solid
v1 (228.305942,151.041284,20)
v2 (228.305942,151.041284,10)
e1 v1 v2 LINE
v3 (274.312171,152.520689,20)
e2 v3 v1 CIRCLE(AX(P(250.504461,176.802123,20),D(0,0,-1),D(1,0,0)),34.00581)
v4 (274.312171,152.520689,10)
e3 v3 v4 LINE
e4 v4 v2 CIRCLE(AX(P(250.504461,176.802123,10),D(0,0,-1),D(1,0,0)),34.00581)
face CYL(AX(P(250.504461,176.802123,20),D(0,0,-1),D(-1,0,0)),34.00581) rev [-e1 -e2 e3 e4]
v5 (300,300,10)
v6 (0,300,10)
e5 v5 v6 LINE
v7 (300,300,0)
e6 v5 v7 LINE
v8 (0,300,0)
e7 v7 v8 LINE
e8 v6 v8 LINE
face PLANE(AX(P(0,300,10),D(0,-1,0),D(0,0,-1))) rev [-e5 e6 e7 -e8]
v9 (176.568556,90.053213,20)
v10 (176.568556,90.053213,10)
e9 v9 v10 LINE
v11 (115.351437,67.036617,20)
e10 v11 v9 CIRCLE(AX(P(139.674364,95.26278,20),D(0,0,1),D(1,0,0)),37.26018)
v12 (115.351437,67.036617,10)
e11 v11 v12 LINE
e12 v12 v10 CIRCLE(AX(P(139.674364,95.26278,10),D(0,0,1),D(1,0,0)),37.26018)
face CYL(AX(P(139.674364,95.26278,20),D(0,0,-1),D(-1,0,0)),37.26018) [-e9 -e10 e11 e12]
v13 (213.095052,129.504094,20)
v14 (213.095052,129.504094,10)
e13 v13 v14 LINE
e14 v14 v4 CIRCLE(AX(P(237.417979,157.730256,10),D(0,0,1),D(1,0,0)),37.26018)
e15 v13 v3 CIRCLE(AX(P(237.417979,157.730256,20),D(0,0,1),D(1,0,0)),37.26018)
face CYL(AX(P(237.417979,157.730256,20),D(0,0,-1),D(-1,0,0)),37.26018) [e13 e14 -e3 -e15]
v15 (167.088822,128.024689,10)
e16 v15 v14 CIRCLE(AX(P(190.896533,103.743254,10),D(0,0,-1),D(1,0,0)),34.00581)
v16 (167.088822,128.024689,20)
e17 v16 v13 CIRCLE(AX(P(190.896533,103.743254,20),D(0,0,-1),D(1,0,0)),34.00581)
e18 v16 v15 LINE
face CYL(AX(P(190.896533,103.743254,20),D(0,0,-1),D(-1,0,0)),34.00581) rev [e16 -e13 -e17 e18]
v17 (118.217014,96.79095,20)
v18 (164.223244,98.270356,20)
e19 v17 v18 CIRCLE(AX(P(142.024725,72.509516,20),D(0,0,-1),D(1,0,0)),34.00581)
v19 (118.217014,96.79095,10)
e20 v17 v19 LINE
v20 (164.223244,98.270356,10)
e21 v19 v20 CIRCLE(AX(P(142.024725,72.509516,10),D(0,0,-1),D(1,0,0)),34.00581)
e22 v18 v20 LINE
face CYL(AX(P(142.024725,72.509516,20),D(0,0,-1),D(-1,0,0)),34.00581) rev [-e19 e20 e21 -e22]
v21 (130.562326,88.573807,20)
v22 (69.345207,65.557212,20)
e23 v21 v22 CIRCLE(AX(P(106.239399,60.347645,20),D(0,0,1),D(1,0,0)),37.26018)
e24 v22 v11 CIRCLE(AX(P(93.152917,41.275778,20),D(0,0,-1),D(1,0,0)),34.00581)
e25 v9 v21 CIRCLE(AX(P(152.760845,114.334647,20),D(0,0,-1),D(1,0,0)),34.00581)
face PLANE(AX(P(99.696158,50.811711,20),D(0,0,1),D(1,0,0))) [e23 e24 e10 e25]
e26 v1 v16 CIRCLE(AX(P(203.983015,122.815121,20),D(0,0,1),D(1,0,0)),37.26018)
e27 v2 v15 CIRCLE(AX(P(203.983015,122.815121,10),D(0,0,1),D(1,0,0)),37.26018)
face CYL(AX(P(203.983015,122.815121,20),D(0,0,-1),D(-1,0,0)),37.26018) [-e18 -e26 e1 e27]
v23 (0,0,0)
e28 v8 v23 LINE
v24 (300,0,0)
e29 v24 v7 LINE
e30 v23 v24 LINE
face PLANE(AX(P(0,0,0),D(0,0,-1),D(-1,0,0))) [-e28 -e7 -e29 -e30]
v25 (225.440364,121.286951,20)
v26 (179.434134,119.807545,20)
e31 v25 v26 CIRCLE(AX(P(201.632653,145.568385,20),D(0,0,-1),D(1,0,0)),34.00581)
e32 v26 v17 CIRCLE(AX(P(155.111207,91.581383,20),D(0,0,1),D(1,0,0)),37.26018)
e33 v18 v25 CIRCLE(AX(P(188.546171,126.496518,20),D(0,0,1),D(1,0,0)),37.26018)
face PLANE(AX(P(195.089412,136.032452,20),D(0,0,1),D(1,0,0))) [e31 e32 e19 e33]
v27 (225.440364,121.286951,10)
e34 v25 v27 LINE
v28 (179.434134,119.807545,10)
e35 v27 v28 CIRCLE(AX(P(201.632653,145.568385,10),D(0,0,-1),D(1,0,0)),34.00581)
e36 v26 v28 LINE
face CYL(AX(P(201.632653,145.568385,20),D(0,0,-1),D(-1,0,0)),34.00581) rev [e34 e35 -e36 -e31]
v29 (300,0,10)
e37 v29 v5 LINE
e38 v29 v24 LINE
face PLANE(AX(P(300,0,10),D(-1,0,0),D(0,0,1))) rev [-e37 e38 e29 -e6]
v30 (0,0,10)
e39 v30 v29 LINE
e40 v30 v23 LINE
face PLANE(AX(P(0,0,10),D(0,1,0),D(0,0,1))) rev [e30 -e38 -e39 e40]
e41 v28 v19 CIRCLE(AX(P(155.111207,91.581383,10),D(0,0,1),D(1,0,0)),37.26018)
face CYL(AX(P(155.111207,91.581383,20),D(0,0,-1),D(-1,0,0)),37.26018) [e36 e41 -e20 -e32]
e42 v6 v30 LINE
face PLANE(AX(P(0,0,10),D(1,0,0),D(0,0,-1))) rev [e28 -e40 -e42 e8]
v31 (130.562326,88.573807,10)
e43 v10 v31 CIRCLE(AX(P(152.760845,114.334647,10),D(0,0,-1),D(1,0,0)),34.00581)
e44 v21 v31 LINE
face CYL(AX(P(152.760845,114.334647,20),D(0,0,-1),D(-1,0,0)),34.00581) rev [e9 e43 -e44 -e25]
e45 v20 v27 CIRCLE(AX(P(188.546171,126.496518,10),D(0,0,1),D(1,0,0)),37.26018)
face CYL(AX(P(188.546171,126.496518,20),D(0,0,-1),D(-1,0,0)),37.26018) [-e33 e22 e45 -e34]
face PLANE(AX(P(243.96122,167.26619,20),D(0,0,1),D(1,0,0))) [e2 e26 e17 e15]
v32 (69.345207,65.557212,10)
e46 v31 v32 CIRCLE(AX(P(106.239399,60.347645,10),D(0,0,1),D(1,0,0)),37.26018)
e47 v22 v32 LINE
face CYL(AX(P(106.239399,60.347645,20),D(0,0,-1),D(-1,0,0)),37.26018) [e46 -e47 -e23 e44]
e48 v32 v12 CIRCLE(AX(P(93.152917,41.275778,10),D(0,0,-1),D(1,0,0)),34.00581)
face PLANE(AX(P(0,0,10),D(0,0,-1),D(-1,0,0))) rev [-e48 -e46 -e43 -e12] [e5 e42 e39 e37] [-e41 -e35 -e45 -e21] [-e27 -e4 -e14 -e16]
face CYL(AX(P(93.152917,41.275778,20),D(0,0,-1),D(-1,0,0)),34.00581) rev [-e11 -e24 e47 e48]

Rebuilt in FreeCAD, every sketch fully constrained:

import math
import FreeCAD as App
import Part
import Sketcher

doc = App.newDocument("Part")
body = doc.addObject("PartDesign::Body", "Body")

sketch1 = body.newObject("Sketcher::SketchObject", "Sketch")
sketch1.AttachmentSupport = (doc.getObject("XY_Plane"), [""])
sketch1.MapMode = "FlatFace"
sketch1.addGeometry(Part.LineSegment(App.Vector(0, 300, 0), App.Vector(0, 0, 0)), False)
sketch1.addGeometry(Part.LineSegment(App.Vector(0, 0, 0), App.Vector(300, 0, 0)), False)
sketch1.addGeometry(Part.LineSegment(App.Vector(300, 0, 0), App.Vector(300, 300, 0)), False)
sketch1.addGeometry(Part.LineSegment(App.Vector(300, 300, 0), App.Vector(0, 300, 0)), False)
sketch1.addConstraint(Sketcher.Constraint("Coincident", 0, 2, 1, 1))
sketch1.addConstraint(Sketcher.Constraint("Coincident", 1, 2, 2, 1))
sketch1.addConstraint(Sketcher.Constraint("Coincident", 2, 2, 3, 1))
sketch1.addConstraint(Sketcher.Constraint("Coincident", 3, 2, 0, 1))
sketch1.addConstraint(Sketcher.Constraint("Vertical", 0))
sketch1.addConstraint(Sketcher.Constraint("Horizontal", 1))
sketch1.addConstraint(Sketcher.Constraint("Vertical", 2))
sketch1.addConstraint(Sketcher.Constraint("Horizontal", 3))
sketch1.addConstraint(Sketcher.Constraint("Coincident", 0, 2, -1, 1))
sketch1.addConstraint(Sketcher.Constraint("Equal", 3, 0))
sketch1.addConstraint(Sketcher.Constraint("DistanceX", 1, 1, 1, 2, 300.0))
pad1 = body.newObject("PartDesign::Pad", "Pad")
pad1.Profile = sketch1
pad1.Length = 10

sketch2 = body.newObject("Sketcher::SketchObject", "Sketch001")
sketch2.AttachmentSupport = (doc.getObject("XY_Plane"), [""])
sketch2.MapMode = "FlatFace"
sketch2.AttachmentOffset = App.Placement(App.Vector(0, 0, 10), App.Rotation())
sketch2.addGeometry(Part.ArcOfCircle(Part.Circle(App.Vector(140, 95, 0), App.Vector(0, 0, 1), 37), math.radians(-131), math.radians(-8)), False)
sketch2.addGeometry(Part.ArcOfCircle(Part.Circle(App.Vector(153, 114, 0), App.Vector(0, 0, 1), 34), math.radians(-131), math.radians(-46)), False)
sketch2.addGeometry(Part.ArcOfCircle(Part.Circle(App.Vector(106, 60, 0), App.Vector(0, 0, 1), 37), math.radians(49), math.radians(172)), False)
sketch2.addGeometry(Part.ArcOfCircle(Part.Circle(App.Vector(93, 41, 0), App.Vector(0, 0, 1), 34), math.radians(49), math.radians(134)), False)
sketch2.addGeometry(Part.ArcOfCircle(Part.Circle(App.Vector(155, 92, 0), App.Vector(0, 0, 1), 37), math.radians(49), math.radians(172)), False)
sketch2.addGeometry(Part.ArcOfCircle(Part.Circle(App.Vector(142, 73, 0), App.Vector(0, 0, 1), 34), math.radians(49), math.radians(134)), False)
sketch2.addGeometry(Part.ArcOfCircle(Part.Circle(App.Vector(189, 126, 0), App.Vector(0, 0, 1), 37), math.radians(-131), math.radians(-8)), False)
sketch2.addGeometry(Part.ArcOfCircle(Part.Circle(App.Vector(202, 146, 0), App.Vector(0, 0, 1), 34), math.radians(-131), math.radians(-46)), False)
sketch2.addGeometry(Part.ArcOfCircle(Part.Circle(App.Vector(204, 123, 0), App.Vector(0, 0, 1), 37), math.radians(49), math.radians(172)), False)
sketch2.addGeometry(Part.ArcOfCircle(Part.Circle(App.Vector(191, 104, 0), App.Vector(0, 0, 1), 34), math.radians(49), math.radians(134)), False)
sketch2.addGeometry(Part.ArcOfCircle(Part.Circle(App.Vector(237, 158, 0), App.Vector(0, 0, 1), 37), math.radians(-131), math.radians(-8)), False)
sketch2.addGeometry(Part.ArcOfCircle(Part.Circle(App.Vector(251, 177, 0), App.Vector(0, 0, 1), 34), math.radians(-131), math.radians(-46)), False)
sketch2.addConstraint(Sketcher.Constraint("Coincident", 0, 2, 1, 2))
sketch2.addConstraint(Sketcher.Constraint("Tangent", 1, 1, 2, 1))
sketch2.addConstraint(Sketcher.Constraint("Coincident", 2, 2, 3, 2))
sketch2.addConstraint(Sketcher.Constraint("Tangent", 3, 1, 0, 1))
sketch2.addConstraint(Sketcher.Constraint("Coincident", 4, 2, 5, 2))
sketch2.addConstraint(Sketcher.Constraint("Tangent", 5, 1, 6, 1))
sketch2.addConstraint(Sketcher.Constraint("Coincident", 6, 2, 7, 2))
sketch2.addConstraint(Sketcher.Constraint("Tangent", 7, 1, 4, 1))
sketch2.addConstraint(Sketcher.Constraint("Coincident", 8, 2, 9, 2))
sketch2.addConstraint(Sketcher.Constraint("Tangent", 9, 1, 10, 1))
sketch2.addConstraint(Sketcher.Constraint("Coincident", 10, 2, 11, 2))
sketch2.addConstraint(Sketcher.Constraint("Tangent", 11, 1, 8, 1))
sketch2.addConstraint(Sketcher.Constraint("Equal", 0, 2))
sketch2.addConstraint(Sketcher.Constraint("Equal", 1, 3))
sketch2.addConstraint(Sketcher.Constraint("Equal", 2, 4))
sketch2.addConstraint(Sketcher.Constraint("Equal", 3, 5))
sketch2.addConstraint(Sketcher.Constraint("Equal", 4, 6))
sketch2.addConstraint(Sketcher.Constraint("Equal", 5, 7))
sketch2.addConstraint(Sketcher.Constraint("Equal", 6, 8))
sketch2.addConstraint(Sketcher.Constraint("Equal", 7, 9))
sketch2.addConstraint(Sketcher.Constraint("Equal", 8, 10))
sketch2.addConstraint(Sketcher.Constraint("Equal", 9, 11))
sketch2.addConstraint(Sketcher.Constraint("Radius", 0, 37.26018))
sketch2.addConstraint(Sketcher.Constraint("Radius", 1, 34.00581))
sketch2.addConstraint(Sketcher.Constraint("DistanceX", -1, 1, 2, 3, 106.239399))
sketch2.addConstraint(Sketcher.Constraint("DistanceX", 1, 1, 5, 3, 11.462399))
sketch2.addConstraint(Sketcher.Constraint("DistanceY", 3, 1, 5, 3, 5.472899))
sketch2.addConstraint(Sketcher.Constraint("DistanceX", 1, 3, 5, 1, 11.462399))
sketch2.addConstraint(Sketcher.Constraint("DistanceY", 5, 1, 9, 3, 5.472899))
sketch2.addConstraint(Sketcher.Constraint("DistanceX", 7, 1, 9, 3, 11.462399))
sketch2.addConstraint(Sketcher.Constraint("DistanceY", 1, 3, 7, 1, 5.472899))
sketch2.addConstraint(Sketcher.Constraint("DistanceX", 7, 3, 9, 1, 11.462399))
sketch2.addConstraint(Sketcher.Constraint("DistanceY", 7, 3, 11, 1, 5.472899))
sketch2.addConstraint(Sketcher.Constraint("DistanceY", -1, 1, 0, 3, 95.26278))
sketch2.addConstraint(Sketcher.Constraint("DistanceX", -1, 1, 6, 3, 188.546171))
sketch2.addConstraint(Sketcher.Constraint("DistanceY", -1, 1, 6, 3, 126.496518))
sketch2.addConstraint(Sketcher.Constraint("DistanceY", -1, 1, 8, 3, 122.815121))
sketch2.addConstraint(Sketcher.Constraint("DistanceX", -1, 1, 10, 3, 237.417979))
sketch2.addConstraint(Sketcher.Constraint("DistanceX", -1, 1, 11, 3, 250.504461))
sketch2.addConstraint(Sketcher.Constraint("DistanceY", -1, 1, 4, 2, 96.79095))
sketch2.addConstraint(Sketcher.Constraint("DistanceY", -1, 1, 6, 2, 121.286951))
sketch2.addConstraint(Sketcher.Constraint("DistanceX", 0, 3, 1, 3, 13.086482))
pad2 = body.newObject("PartDesign::Pad", "Pad001")
pad2.Profile = sketch2
pad2.Length = 10

doc.recompute()
